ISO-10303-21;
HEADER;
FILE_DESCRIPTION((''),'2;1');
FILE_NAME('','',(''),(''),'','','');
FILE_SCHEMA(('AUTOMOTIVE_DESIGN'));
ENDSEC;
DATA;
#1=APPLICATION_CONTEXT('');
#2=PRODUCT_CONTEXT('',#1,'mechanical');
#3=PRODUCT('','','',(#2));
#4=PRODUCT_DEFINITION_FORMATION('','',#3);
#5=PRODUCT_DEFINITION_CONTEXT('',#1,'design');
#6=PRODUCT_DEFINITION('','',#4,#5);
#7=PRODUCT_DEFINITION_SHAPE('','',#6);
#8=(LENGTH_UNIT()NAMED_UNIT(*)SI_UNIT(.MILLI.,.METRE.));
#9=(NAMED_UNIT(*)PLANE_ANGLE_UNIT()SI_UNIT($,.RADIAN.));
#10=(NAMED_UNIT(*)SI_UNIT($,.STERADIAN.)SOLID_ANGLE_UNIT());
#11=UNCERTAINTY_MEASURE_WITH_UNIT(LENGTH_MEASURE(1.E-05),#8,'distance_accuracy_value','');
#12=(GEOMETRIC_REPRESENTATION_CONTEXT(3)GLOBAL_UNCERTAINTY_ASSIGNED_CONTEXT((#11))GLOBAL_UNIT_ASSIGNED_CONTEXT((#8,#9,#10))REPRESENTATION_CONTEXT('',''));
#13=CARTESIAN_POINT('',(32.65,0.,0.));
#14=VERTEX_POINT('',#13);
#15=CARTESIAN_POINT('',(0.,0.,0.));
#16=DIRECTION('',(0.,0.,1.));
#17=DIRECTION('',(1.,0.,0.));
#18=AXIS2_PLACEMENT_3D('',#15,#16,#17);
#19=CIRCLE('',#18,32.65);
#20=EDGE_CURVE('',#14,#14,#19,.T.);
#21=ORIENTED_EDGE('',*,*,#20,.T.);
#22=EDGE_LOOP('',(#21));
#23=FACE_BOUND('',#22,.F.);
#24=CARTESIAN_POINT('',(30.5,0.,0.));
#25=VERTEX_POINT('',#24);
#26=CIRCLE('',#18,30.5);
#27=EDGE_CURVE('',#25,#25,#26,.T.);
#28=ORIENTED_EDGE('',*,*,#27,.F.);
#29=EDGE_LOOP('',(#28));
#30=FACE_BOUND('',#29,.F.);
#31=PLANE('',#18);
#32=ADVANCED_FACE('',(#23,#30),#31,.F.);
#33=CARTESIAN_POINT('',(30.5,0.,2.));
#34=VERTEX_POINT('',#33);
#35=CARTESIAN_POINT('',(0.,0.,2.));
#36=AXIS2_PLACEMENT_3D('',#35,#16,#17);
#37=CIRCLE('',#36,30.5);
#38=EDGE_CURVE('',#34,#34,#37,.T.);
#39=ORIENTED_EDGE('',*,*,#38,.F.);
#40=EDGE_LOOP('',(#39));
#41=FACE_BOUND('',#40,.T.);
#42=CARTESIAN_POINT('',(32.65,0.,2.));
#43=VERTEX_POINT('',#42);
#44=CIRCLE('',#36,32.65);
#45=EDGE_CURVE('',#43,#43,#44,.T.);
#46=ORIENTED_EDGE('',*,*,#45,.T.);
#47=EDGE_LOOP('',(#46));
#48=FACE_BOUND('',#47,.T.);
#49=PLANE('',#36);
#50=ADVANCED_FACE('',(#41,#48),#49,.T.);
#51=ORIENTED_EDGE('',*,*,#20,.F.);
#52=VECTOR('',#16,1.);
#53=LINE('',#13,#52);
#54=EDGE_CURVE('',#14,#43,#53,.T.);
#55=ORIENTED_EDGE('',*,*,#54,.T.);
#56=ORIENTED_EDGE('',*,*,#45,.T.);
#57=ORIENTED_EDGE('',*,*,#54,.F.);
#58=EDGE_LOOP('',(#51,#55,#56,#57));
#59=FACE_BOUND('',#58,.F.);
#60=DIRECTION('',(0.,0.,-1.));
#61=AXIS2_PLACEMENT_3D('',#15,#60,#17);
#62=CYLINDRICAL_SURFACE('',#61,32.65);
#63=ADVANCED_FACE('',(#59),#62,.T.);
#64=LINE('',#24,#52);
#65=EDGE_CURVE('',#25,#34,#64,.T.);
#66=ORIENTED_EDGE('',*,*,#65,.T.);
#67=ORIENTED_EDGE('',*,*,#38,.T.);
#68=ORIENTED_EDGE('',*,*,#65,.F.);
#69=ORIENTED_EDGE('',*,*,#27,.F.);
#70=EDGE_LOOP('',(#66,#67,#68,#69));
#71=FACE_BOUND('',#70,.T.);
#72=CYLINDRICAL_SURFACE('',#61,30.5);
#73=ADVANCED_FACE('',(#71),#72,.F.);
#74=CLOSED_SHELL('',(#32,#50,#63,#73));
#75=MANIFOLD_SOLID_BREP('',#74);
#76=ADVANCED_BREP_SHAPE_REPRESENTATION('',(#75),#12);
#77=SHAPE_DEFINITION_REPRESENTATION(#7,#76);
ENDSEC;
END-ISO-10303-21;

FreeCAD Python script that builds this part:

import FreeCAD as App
import Part
import Sketcher
from FreeCAD import Vector
Q = App.Units.Quantity

doc = App.newDocument("Part")
body = doc.addObject("PartDesign::Body", "Body")

sketch1 = body.newObject("Sketcher::SketchObject", "Sketch")
sketch1.AttachmentSupport = (doc.getObject("XY_Plane"), [""])
sketch1.MapMode = "FlatFace"
sketch1.addGeometry([
    Part.Circle(Vector(0, 0, 0), Vector(0, 0, 1), 33),
    Part.Circle(Vector(0, 0, 0), Vector(0, 0, 1), 30),
], False)
sketch1.addConstraint([
    Sketcher.Constraint("Coincident", 0, 3, -1, 1),
    Sketcher.Constraint("Coincident", 1, 3, -1, 1),
    Sketcher.Constraint("Diameter", 1, Q("61 mm")),
    Sketcher.Constraint("Diameter", 0, Q("65.3 mm")),
])
pad1 = body.newObject("PartDesign::Pad", "Pad")
pad1.Profile = sketch1
pad1.Length = 2

doc.recompute()
